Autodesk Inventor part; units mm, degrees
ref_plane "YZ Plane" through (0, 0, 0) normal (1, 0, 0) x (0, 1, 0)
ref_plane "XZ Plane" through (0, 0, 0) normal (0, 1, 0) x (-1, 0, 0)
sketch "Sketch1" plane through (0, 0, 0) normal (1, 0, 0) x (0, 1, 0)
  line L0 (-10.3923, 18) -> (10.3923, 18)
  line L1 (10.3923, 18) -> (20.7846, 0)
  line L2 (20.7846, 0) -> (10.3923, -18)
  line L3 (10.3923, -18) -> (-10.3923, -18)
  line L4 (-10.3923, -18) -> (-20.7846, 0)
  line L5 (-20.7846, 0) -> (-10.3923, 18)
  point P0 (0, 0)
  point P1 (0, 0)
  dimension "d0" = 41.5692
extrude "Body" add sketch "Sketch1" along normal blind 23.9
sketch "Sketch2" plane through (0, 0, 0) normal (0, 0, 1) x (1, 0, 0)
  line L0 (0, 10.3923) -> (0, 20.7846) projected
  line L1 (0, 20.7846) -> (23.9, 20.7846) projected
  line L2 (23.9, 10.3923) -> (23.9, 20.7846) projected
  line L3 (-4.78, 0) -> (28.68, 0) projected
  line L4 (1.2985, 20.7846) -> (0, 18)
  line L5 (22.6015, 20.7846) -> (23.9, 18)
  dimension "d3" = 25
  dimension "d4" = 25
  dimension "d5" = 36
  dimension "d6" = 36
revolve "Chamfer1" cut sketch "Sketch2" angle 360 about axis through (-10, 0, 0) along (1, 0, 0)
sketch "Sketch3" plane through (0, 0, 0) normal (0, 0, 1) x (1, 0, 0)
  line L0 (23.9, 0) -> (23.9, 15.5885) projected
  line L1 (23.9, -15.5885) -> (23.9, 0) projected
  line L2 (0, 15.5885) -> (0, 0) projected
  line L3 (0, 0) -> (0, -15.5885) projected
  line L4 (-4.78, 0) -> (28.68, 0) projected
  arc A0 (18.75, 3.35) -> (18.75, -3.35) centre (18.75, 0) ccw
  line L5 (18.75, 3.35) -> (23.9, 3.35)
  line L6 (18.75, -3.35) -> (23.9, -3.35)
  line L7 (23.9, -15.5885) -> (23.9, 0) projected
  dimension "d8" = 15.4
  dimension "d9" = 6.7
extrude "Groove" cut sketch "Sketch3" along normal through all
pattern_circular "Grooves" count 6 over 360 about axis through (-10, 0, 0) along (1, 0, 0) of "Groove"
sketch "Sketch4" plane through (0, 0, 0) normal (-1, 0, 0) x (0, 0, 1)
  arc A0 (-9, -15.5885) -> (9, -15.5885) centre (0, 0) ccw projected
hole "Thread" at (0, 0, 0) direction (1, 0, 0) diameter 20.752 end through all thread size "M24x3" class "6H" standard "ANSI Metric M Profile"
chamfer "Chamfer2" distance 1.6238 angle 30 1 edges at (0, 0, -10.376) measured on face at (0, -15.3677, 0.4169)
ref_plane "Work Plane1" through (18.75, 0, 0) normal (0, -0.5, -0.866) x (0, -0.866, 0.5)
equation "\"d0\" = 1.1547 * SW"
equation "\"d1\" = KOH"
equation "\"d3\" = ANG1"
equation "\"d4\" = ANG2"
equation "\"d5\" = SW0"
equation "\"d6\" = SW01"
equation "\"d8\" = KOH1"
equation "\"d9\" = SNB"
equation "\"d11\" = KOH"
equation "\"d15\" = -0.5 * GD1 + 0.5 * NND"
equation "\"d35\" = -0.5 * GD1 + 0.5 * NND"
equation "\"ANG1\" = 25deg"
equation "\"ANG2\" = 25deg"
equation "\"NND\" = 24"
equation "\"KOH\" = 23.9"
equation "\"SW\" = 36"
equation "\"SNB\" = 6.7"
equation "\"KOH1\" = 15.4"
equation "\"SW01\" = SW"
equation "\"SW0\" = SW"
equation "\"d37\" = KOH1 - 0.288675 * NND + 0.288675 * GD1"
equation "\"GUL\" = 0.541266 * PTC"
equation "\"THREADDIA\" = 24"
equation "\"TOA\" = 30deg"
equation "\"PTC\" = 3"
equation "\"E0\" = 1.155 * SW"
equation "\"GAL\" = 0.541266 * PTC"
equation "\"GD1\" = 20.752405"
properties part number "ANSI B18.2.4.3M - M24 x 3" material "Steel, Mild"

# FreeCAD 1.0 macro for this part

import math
import FreeCAD as App
import Part
import Sketcher
from FreeCAD import Vector
Q = App.Units.Quantity


def edges_at(feature, points):
    """Names of the edges that pass closest to the given points."""
    edges = feature.Shape.Edges
    near = lambda p: min(range(len(edges)), key=lambda i: edges[i].distToShape(Part.Vertex(*p))[0])
    return sorted({f"Edge{near(p) + 1}" for p in points})

doc = App.newDocument("Part")
params = doc.addObject("Spreadsheet::Sheet", "Params")
for row, (alias, value) in enumerate([
    ("pad1_length", "23.9 mm"),
    ("groove_angle", "360 deg"),
    ("sketch3_radius", "3.35 mm"),
    ("sketch3_width", "5.15 mm"),
    ("hole_diameter", "20.752 mm"),
    ("chamfer_size", "1.6238 mm"),
], start=1):
    params.set(f"A{row}", alias)
    params.set(f"B{row}", "=" + value)
    params.setAlias(f"B{row}", alias)

body = doc.addObject("PartDesign::Body", "Body")

# Sketch on YZ plane
sketch1 = body.newObject("Sketcher::SketchObject", "Sketch")
sketch1.AttachmentSupport = (doc.getObject("YZ_Plane"), [""])
sketch1.MapMode = "FlatFace"
sketch1.addGeometry(Part.LineSegment(Vector(10.3923, 18, 0), Vector(-10.3923, 18, 0)), False)
sketch1.addGeometry(Part.LineSegment(Vector(-10.3923, 18, 0), Vector(-20.7846, 0, 0)), False)
sketch1.addGeometry(Part.LineSegment(Vector(-20.7846, 0, 0), Vector(-10.3923, -18, 0)), False)
sketch1.addGeometry(Part.LineSegment(Vector(-10.3923, -18, 0), Vector(10.3923, -18, 0)), False)
sketch1.addGeometry(Part.LineSegment(Vector(10.3923, -18, 0), Vector(20.7846, 0, 0)), False)
sketch1.addGeometry(Part.LineSegment(Vector(20.7846, 0, 0), Vector(10.3923, 18, 0)), False)
sketch1.addConstraint(Sketcher.Constraint("Coincident", 0, 2, 1, 1))
sketch1.addConstraint(Sketcher.Constraint("Coincident", 1, 2, 2, 1))
sketch1.addConstraint(Sketcher.Constraint("Coincident", 2, 2, 3, 1))
sketch1.addConstraint(Sketcher.Constraint("Coincident", 3, 2, 4, 1))
sketch1.addConstraint(Sketcher.Constraint("Coincident", 4, 2, 5, 1))
sketch1.addConstraint(Sketcher.Constraint("Coincident", 5, 2, 0, 1))
sketch1.addConstraint(Sketcher.Constraint("Horizontal", 0))
sketch1.addConstraint(Sketcher.Constraint("Horizontal", 3))
sketch1.addConstraint(Sketcher.Constraint("Symmetric", 0, 2, 3, 2, -1, 1))
sketch1.addConstraint(Sketcher.Constraint("Symmetric", 1, 2, 4, 2, -1, 1))
sketch1.addConstraint(Sketcher.Constraint("PointOnObject", 1, 2, -1))
sketch1.addConstraint(Sketcher.Constraint("Parallel", 2, 5))
sketch1.addConstraint(Sketcher.Constraint("Vertical", 0, 2, 2, 2))
sketch1.addConstraint(Sketcher.Constraint("Angle", 1, Q("-120 deg")))
sketch1.addConstraint(Sketcher.Constraint("DistanceY", -1, 1, 0, 2, 18.0))
sketch1.addConstraint(Sketcher.Constraint("DistanceX", 1, 2, 4, 2, 41.5692))
pad1 = body.newObject("PartDesign::Pad", "Pad")
pad1.Profile = sketch1
pad1.setExpression("Length", "Params.pad1_length")

# Sketch on XY plane
sketch2 = body.newObject("Sketcher::SketchObject", "Sketch001")
sketch2.AttachmentSupport = (doc.getObject("XY_Plane"), [""])
sketch2.MapMode = "FlatFace"
sketch2.addGeometry(Part.LineSegment(Vector(23.9, 20.7846, 0), Vector(22.6015, 20.7846, 0)), False)
sketch2.addGeometry(Part.LineSegment(Vector(22.6015, 20.7846, 0), Vector(23.9, 18, 0)), False)
sketch2.addGeometry(Part.LineSegment(Vector(23.9, 18, 0), Vector(23.9, 20.7846, 0)), False)
sketch2.addGeometry(Part.LineSegment(Vector(0, 20.7846, 0), Vector(0, 18, 0)), False)
sketch2.addGeometry(Part.LineSegment(Vector(0, 18, 0), Vector(1.2985, 20.7846, 0)), False)
sketch2.addGeometry(Part.LineSegment(Vector(1.2985, 20.7846, 0), Vector(0, 20.7846, 0)), False)
sketch2.addConstraint(Sketcher.Constraint("Coincident", 0, 2, 1, 1))
sketch2.addConstraint(Sketcher.Constraint("Coincident", 1, 2, 2, 1))
sketch2.addConstraint(Sketcher.Constraint("Coincident", 2, 2, 0, 1))
sketch2.addConstraint(Sketcher.Constraint("Coincident", 3, 2, 4, 1))
sketch2.addConstraint(Sketcher.Constraint("Coincident", 4, 2, 5, 1))
sketch2.addConstraint(Sketcher.Constraint("Coincident", 5, 2, 3, 1))
sketch2.addConstraint(Sketcher.Constraint("Horizontal", 0))
sketch2.addConstraint(Sketcher.Constraint("Vertical", 2))
sketch2.addConstraint(Sketcher.Constraint("Vertical", 3))
sketch2.addConstraint(Sketcher.Constraint("Horizontal", 5))
sketch2.addConstraint(Sketcher.Constraint("PointOnObject", 3, 2, -2))
sketch2.addConstraint(Sketcher.Constraint("Horizontal", 1, 2, 3, 2))
sketch2.addConstraint(Sketcher.Constraint("Horizontal", 2, 2, 4, 2))
sketch2.addConstraint(Sketcher.Constraint("Equal", 0, 5))
sketch2.addConstraint(Sketcher.Constraint("Angle", 1, Q("-64.9997 deg")))
sketch2.addConstraint(Sketcher.Constraint("DistanceY", -1, 1, 1, 2, 18.0))
sketch2.addConstraint(Sketcher.Constraint("DistanceX", -1, 1, 1, 2, 23.9))
sketch2.addConstraint(Sketcher.Constraint("DistanceX", 0, 2, 0, 1, 1.2985))
groove = body.newObject("PartDesign::Groove", "Groove")
groove.Profile = sketch2
groove.ReferenceAxis = (sketch2, ["H_Axis"])
groove.setExpression("Angle", "Params.groove_angle")

# Sketch on XY plane
sketch3 = body.newObject("Sketcher::SketchObject", "Sketch002")
sketch3.AttachmentSupport = (doc.getObject("XY_Plane"), [""])
sketch3.MapMode = "FlatFace"
sketch3.addGeometry(Part.ArcOfCircle(Part.Circle(Vector(18.75, 0, 0), Vector(0, 0, 1), 3.35), math.radians(90), math.radians(270)), False)
sketch3.addGeometry(Part.LineSegment(Vector(18.75, -3.35, 0), Vector(23.9, -3.35, 0)), False)
sketch3.addGeometry(Part.LineSegment(Vector(23.9, -3.35, 0), Vector(23.9, 3.35, 0)), False)
sketch3.addGeometry(Part.LineSegment(Vector(23.9, 3.35, 0), Vector(18.75, 3.35, 0)), False)
sketch3.addConstraint(Sketcher.Constraint("Tangent", 0, 2, 1, 1))
sketch3.addConstraint(Sketcher.Constraint("Coincident", 1, 2, 2, 1))
sketch3.addConstraint(Sketcher.Constraint("Coincident", 2, 2, 3, 1))
sketch3.addConstraint(Sketcher.Constraint("Tangent", 3, 2, 0, 1))
sketch3.addConstraint(Sketcher.Constraint("Horizontal", 1))
sketch3.addConstraint(Sketcher.Constraint("Vertical", 2))
sketch3.addConstraint(Sketcher.Constraint("Horizontal", 3))
sketch3.addConstraint(Sketcher.Constraint("PointOnObject", 0, 3, -1))
sketch3.addConstraint(Sketcher.Constraint("Radius", 0, 3.35))
sketch3.addConstraint(Sketcher.Constraint("DistanceX", 1, 1, 1, 2, 5.15))
sketch3.addConstraint(Sketcher.Constraint("DistanceX", -1, 1, 1, 2, 23.9))
sketch3.setExpression("Constraints[8]", "Params.sketch3_radius")
sketch3.setExpression("Constraints[9]", "Params.sketch3_width")
pocket1 = body.newObject("PartDesign::Pocket", "Pocket")
pocket1.Profile = sketch3
pocket1.Type = "ThroughAll"
pocket1.Reversed = True
doc.recompute()

polarpattern = body.newObject("PartDesign::PolarPattern", "PolarPattern")
polarpattern.Originals = [pocket1]
polarpattern.Axis = (doc.getObject("X_Axis"), [""])
polarpattern.Angle = 360
polarpattern.Occurrences = 6
body.Tip = polarpattern

# Sketch on YZ plane
sketch4 = body.newObject("Sketcher::SketchObject", "Sketch003")
sketch4.AttachmentSupport = (doc.getObject("YZ_Plane"), [""])
sketch4.MapMode = "FlatFace"
sketch4.addGeometry(Part.Circle(Vector(0, 0, 0), Vector(0, 0, 1), 10.376), False)
sketch4.addConstraint(Sketcher.Constraint("Coincident", 0, 3, -1, 1))
sketch4.addConstraint(Sketcher.Constraint("Diameter", 0, 20.752))
doc.recompute()
hole = body.newObject("PartDesign::Hole", "Hole")
hole.Profile = sketch4
hole.ThreadType = "None"
hole.setExpression("Diameter", "Params.hole_diameter")
hole.DepthType = "ThroughAll"
hole.Reversed = True
doc.recompute()

chamfer = body.newObject("PartDesign::Chamfer", "Chamfer")
chamfer.Base = (hole, edges_at(hole, [(0, 0, -10.376)]))
chamfer.ChamferType = "Distance and Angle"
chamfer.setExpression("Size", "Params.chamfer_size")
chamfer.Angle = 30

doc.recompute()
